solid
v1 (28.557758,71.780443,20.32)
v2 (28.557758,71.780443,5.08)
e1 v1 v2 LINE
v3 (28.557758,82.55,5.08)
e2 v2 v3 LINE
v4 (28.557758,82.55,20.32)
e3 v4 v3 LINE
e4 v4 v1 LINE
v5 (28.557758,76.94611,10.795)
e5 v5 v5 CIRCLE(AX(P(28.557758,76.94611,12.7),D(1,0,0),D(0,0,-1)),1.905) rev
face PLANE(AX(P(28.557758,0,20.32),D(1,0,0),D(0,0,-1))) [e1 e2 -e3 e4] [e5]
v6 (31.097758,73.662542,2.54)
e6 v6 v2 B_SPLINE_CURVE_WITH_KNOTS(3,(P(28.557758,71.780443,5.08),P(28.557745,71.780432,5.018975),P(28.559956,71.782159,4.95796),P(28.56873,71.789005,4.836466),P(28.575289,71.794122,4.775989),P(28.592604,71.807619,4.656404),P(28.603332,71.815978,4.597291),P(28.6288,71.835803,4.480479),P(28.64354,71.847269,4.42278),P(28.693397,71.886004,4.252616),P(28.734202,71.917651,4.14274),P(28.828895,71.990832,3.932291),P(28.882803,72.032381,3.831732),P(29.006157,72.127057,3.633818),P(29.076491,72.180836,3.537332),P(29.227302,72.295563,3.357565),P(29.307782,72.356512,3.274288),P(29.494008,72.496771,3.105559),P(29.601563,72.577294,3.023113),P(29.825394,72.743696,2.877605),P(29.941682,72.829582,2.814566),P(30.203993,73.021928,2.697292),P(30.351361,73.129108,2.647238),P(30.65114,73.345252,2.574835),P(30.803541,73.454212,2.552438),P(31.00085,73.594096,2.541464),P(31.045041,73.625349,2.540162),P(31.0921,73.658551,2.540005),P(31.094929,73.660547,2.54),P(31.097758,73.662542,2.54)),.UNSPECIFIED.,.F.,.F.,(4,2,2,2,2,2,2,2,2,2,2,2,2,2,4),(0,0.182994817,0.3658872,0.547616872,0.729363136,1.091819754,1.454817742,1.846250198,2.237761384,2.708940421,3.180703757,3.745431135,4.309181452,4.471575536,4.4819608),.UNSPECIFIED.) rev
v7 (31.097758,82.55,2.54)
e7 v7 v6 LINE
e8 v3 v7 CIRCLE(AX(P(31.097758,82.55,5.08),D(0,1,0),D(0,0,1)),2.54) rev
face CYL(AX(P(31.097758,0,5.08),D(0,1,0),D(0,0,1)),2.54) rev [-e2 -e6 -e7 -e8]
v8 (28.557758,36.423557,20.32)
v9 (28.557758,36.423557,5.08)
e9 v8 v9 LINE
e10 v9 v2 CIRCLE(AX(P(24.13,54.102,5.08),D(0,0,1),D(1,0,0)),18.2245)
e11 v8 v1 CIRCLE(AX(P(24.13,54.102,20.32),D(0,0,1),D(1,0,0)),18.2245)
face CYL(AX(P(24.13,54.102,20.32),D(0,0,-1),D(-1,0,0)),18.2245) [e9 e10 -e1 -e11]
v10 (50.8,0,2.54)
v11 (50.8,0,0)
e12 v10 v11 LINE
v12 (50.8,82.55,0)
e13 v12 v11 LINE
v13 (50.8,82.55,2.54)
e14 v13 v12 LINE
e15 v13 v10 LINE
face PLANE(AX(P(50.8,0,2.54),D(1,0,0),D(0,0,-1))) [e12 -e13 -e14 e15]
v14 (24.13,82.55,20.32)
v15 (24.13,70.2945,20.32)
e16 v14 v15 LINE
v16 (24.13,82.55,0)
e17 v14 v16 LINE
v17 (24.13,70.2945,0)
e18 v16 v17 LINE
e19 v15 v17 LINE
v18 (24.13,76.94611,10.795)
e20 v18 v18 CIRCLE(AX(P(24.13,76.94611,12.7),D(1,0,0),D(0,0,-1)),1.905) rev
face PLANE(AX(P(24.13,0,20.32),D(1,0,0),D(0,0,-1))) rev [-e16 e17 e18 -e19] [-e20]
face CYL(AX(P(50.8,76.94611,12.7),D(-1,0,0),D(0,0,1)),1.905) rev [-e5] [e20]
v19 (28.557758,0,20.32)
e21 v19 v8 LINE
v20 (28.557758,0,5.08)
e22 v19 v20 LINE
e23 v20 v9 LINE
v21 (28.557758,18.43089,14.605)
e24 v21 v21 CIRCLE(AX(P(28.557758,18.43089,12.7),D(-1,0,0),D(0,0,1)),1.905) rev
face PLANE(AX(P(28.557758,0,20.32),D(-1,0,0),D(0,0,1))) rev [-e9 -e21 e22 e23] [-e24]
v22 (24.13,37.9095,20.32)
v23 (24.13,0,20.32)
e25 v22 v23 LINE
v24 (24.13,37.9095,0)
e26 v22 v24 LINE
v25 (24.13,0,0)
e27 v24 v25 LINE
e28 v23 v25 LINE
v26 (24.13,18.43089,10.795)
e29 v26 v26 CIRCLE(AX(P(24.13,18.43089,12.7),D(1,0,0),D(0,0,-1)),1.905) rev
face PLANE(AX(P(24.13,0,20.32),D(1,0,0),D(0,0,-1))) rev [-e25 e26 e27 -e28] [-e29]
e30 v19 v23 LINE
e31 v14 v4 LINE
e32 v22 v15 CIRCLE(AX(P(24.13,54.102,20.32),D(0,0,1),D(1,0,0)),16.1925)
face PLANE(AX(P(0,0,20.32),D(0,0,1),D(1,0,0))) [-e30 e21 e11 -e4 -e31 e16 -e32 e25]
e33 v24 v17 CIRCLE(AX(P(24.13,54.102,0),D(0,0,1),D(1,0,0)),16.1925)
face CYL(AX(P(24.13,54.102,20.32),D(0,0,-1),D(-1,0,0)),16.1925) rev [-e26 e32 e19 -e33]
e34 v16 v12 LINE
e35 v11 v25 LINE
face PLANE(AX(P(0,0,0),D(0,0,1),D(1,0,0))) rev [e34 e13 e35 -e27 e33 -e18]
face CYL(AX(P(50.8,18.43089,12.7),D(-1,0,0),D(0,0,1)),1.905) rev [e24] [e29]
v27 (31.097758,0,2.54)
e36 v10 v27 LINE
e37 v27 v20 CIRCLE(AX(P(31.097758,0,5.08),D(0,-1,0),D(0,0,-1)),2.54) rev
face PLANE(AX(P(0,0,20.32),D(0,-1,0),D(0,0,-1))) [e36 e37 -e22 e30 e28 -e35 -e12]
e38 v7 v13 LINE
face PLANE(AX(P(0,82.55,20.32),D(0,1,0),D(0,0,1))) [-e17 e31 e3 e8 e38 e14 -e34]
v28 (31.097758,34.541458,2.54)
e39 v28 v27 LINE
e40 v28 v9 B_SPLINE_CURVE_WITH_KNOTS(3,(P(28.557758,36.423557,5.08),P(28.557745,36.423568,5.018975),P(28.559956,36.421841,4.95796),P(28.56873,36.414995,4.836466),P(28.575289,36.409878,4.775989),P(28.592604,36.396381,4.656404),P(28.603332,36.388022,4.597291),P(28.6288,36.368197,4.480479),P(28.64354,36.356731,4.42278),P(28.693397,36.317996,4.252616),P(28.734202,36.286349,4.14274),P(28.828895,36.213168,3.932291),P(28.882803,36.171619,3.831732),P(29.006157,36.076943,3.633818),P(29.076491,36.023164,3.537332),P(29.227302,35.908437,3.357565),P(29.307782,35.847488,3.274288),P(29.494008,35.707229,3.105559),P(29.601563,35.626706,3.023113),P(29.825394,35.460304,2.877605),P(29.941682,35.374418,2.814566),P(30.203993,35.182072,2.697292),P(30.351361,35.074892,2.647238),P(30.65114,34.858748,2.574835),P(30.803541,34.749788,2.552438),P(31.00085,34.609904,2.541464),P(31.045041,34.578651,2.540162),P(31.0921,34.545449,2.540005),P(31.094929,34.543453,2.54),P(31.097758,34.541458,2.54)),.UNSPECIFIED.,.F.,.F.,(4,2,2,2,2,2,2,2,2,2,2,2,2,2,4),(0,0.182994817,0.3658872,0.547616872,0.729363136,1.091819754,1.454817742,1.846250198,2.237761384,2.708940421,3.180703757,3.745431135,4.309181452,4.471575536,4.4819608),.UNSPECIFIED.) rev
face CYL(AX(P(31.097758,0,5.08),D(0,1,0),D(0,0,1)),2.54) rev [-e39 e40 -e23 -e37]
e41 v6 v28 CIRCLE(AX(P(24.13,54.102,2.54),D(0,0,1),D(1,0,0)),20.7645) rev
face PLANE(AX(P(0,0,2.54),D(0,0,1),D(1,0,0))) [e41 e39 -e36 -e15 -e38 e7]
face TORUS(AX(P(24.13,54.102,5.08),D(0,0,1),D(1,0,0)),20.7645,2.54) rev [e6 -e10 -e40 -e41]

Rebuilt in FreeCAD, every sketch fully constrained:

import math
import FreeCAD as App
import Part
import Sketcher
Q = App.Units.Quantity


def edges_at(feature, points):
    """Names of the edges that pass closest to the given points."""
    edges = feature.Shape.Edges
    near = lambda p: min(range(len(edges)), key=lambda i: edges[i].distToShape(Part.Vertex(*p))[0])
    return sorted({f"Edge{near(p) + 1}" for p in points})

doc = App.newDocument("Part")
params = doc.addObject("Spreadsheet::Sheet", "Params")
for row, (alias, value) in enumerate([
    ("pad1_length", "0.8 in"),
    ("sketch2_height", "3.25 in"),
    ("pad2_length", "0.1 in"),
    ("fillet_radius", "0.1 in"),
    ("sketch3_diameter", "0.15 in"),
], start=1):
    params.set(f"A{row}", alias)
    params.set(f"B{row}", "=" + value)
    params.setAlias(f"B{row}", alias)

body = doc.addObject("PartDesign::Body", "Body")

# Sketch on XY plane
sketch1 = body.newObject("Sketcher::SketchObject", "Sketch")
sketch1.AttachmentSupport = (doc.getObject("XY_Plane"), [""])
sketch1.MapMode = "FlatFace"
sketch1.addGeometry([
    Part.LineSegment(App.Vector(24.1, 37.9, 0), App.Vector(24.1, 0, 0)),  # 0
    Part.LineSegment(App.Vector(24.1, 0, 0), App.Vector(28.6, 0, 0)),  # 1
    Part.LineSegment(App.Vector(28.6, 0, 0), App.Vector(28.6, 36.4, 0)),  # 2
    Part.ArcOfCircle(Part.Circle(App.Vector(24.1, 54.1, 0), App.Vector(0, 0, 1), 18.2), math.radians(-76), math.radians(76)),  # 3
    Part.LineSegment(App.Vector(28.6, 71.8, 0), App.Vector(28.6, 82.5, 0)),  # 4
    Part.LineSegment(App.Vector(28.6, 82.5, 0), App.Vector(24.1, 82.5, 0)),  # 5
    Part.LineSegment(App.Vector(24.1, 82.5, 0), App.Vector(24.1, 70.3, 0)),  # 6
    Part.ArcOfCircle(Part.Circle(App.Vector(24.1, 54.1, 0), App.Vector(0, 0, 1), 16.2), math.radians(0), math.radians(90)),  # 7
    Part.ArcOfCircle(Part.Circle(App.Vector(24.1, 54.1, 0), App.Vector(0, 0, 1), 16.2), math.radians(-90), math.radians(0)),  # 8
], False)
sketch1.addConstraint([
    Sketcher.Constraint("Coincident", 0, 2, 1, 1),
    Sketcher.Constraint("Coincident", 1, 2, 2, 1),
    Sketcher.Constraint("Coincident", 2, 2, 3, 1),
    Sketcher.Constraint("Coincident", 3, 2, 4, 1),
    Sketcher.Constraint("Coincident", 4, 2, 5, 1),
    Sketcher.Constraint("Coincident", 5, 2, 6, 1),
    Sketcher.Constraint("Coincident", 6, 2, 7, 2),
    Sketcher.Constraint("Tangent", 7, 1, 8, 2),
    Sketcher.Constraint("Coincident", 8, 1, 0, 1),
    Sketcher.Constraint("Vertical", 0),
    Sketcher.Constraint("Horizontal", 1),
    Sketcher.Constraint("Vertical", 2),
    Sketcher.Constraint("Vertical", 4),
    Sketcher.Constraint("Horizontal", 5),
    Sketcher.Constraint("Vertical", 6),
    Sketcher.Constraint("Coincident", 7, 3, 3, 3),
    Sketcher.Constraint("Equal", 7, 8),
    Sketcher.Constraint("PointOnObject", 0, 2, -1),
    Sketcher.Constraint("Horizontal", 8, 3, 7, 1),
    Sketcher.Constraint("Vertical", 8, 3, 0, 2),
    Sketcher.Constraint("Vertical", 2, 2, 3, 2),
    Sketcher.Constraint("Vertical", 0, 2, 5, 2),
    Sketcher.Constraint("Radius", 3, Q("0.7175 in")),
    Sketcher.Constraint("Radius", 7, Q("0.6375 in")),
    Sketcher.Constraint("DistanceX", -1, 1, 3, 3, Q("0.95 in")),
    Sketcher.Constraint("DistanceY", -1, 1, 3, 3, Q("2.13 in")),
    Sketcher.Constraint("DistanceY", -1, 1, 4, 2, Q("3.25 in")),
    Sketcher.Constraint("DistanceX", 1, 1, 1, 2, 4.427758),
])
pad1 = body.newObject("PartDesign::Pad", "Pad")
pad1.Profile = sketch1
pad1.setExpression("Length", "Params.pad1_length")

# Sketch on XY plane
sketch2 = body.newObject("Sketcher::SketchObject", "Sketch001")
sketch2.AttachmentSupport = (doc.getObject("XY_Plane"), [""])
sketch2.MapMode = "FlatFace"
sketch2.addGeometry([
    Part.LineSegment(App.Vector(29, 36, 0), App.Vector(29, 0, 0)),  # 0
    Part.LineSegment(App.Vector(29, 0, 0), App.Vector(51, 0, 0)),  # 1
    Part.LineSegment(App.Vector(51, 0, 0), App.Vector(51, 83, 0)),  # 2
    Part.LineSegment(App.Vector(51, 83, 0), App.Vector(29, 83, 0)),  # 3
    Part.LineSegment(App.Vector(29, 83, 0), App.Vector(29, 72, 0)),  # 4
    Part.ArcOfCircle(Part.Circle(App.Vector(24, 54, 0), App.Vector(0, 0, 1), 18), math.radians(-76), math.radians(76)),  # 5
], False)
sketch2.addConstraint([
    Sketcher.Constraint("Coincident", 0, 2, 1, 1),
    Sketcher.Constraint("Coincident", 1, 2, 2, 1),
    Sketcher.Constraint("Coincident", 2, 2, 3, 1),
    Sketcher.Constraint("Coincident", 3, 2, 4, 1),
    Sketcher.Constraint("Coincident", 4, 2, 5, 2),
    Sketcher.Constraint("Coincident", 5, 1, 0, 1),
    Sketcher.Constraint("Vertical", 0),
    Sketcher.Constraint("Horizontal", 1),
    Sketcher.Constraint("Vertical", 2),
    Sketcher.Constraint("Horizontal", 3),
    Sketcher.Constraint("Vertical", 4),
    Sketcher.Constraint("PointOnObject", 0, 2, -1),
    Sketcher.Constraint("Vertical", 0, 2, 3, 2),
    Sketcher.Constraint("DistanceX", -1, 1, 1, 2, Q("2 in")),
    Sketcher.Constraint("DistanceY", 2, 1, 2, 2, Q("3.25 in")),
    Sketcher.Constraint("Radius", 5, Q("0.7175 in")),
    Sketcher.Constraint("DistanceX", -1, 1, 5, 3, Q("0.95 in")),
    Sketcher.Constraint("DistanceY", -1, 1, 5, 3, Q("2.13 in")),
    Sketcher.Constraint("DistanceX", 1, 1, 1, 2, 22.242242),
])
sketch2.setExpression("Constraints[14]", "Params.sketch2_height")
pad2 = body.newObject("PartDesign::Pad", "Pad001")
pad2.Profile = sketch2
pad2.setExpression("Length", "Params.pad2_length")
doc.recompute()

fillet = body.newObject("PartDesign::Fillet", "Fillet")
fillet.Base = (pad2, edges_at(pad2, [(42.355, 54.102, 2.54), (28.558, 18.212, 2.54), (28.558, 77.165, 2.54)]))
fillet.setExpression("Radius", "Params.fillet_radius")

# Sketch on YZ plane
sketch3 = body.newObject("Sketcher::SketchObject", "Sketch002")
sketch3.AttachmentSupport = (doc.getObject("YZ_Plane"), [""])
sketch3.MapMode = "FlatFace"
sketch3.addGeometry([
    Part.Circle(App.Vector(18.4, 12.7, 0), App.Vector(0, 0, 1), 1.9),
    Part.Circle(App.Vector(76.9, 12.7, 0), App.Vector(0, 0, 1), 1.9),
], False)
sketch3.addConstraint([
    Sketcher.Constraint("Equal", 0, 1),
    Sketcher.Constraint("Horizontal", 0, 3, 1, 3),
    Sketcher.Constraint("Diameter", 0, Q("0.15 in")),
    Sketcher.Constraint("DistanceY", -1, 1, 0, 3, Q("0.5 in")),
    Sketcher.Constraint("DistanceX", -1, 1, 0, 3, 18.43089),
    Sketcher.Constraint("DistanceX", -1, 1, 1, 3, 76.94611),
])
sketch3.setExpression("Constraints[2]", "Params.sketch3_diameter")
pocket1 = body.newObject("PartDesign::Pocket", "Pocket")
pocket1.Profile = sketch3
pocket1.Type = "ThroughAll"
pocket1.Midplane = True

doc.recompute()
